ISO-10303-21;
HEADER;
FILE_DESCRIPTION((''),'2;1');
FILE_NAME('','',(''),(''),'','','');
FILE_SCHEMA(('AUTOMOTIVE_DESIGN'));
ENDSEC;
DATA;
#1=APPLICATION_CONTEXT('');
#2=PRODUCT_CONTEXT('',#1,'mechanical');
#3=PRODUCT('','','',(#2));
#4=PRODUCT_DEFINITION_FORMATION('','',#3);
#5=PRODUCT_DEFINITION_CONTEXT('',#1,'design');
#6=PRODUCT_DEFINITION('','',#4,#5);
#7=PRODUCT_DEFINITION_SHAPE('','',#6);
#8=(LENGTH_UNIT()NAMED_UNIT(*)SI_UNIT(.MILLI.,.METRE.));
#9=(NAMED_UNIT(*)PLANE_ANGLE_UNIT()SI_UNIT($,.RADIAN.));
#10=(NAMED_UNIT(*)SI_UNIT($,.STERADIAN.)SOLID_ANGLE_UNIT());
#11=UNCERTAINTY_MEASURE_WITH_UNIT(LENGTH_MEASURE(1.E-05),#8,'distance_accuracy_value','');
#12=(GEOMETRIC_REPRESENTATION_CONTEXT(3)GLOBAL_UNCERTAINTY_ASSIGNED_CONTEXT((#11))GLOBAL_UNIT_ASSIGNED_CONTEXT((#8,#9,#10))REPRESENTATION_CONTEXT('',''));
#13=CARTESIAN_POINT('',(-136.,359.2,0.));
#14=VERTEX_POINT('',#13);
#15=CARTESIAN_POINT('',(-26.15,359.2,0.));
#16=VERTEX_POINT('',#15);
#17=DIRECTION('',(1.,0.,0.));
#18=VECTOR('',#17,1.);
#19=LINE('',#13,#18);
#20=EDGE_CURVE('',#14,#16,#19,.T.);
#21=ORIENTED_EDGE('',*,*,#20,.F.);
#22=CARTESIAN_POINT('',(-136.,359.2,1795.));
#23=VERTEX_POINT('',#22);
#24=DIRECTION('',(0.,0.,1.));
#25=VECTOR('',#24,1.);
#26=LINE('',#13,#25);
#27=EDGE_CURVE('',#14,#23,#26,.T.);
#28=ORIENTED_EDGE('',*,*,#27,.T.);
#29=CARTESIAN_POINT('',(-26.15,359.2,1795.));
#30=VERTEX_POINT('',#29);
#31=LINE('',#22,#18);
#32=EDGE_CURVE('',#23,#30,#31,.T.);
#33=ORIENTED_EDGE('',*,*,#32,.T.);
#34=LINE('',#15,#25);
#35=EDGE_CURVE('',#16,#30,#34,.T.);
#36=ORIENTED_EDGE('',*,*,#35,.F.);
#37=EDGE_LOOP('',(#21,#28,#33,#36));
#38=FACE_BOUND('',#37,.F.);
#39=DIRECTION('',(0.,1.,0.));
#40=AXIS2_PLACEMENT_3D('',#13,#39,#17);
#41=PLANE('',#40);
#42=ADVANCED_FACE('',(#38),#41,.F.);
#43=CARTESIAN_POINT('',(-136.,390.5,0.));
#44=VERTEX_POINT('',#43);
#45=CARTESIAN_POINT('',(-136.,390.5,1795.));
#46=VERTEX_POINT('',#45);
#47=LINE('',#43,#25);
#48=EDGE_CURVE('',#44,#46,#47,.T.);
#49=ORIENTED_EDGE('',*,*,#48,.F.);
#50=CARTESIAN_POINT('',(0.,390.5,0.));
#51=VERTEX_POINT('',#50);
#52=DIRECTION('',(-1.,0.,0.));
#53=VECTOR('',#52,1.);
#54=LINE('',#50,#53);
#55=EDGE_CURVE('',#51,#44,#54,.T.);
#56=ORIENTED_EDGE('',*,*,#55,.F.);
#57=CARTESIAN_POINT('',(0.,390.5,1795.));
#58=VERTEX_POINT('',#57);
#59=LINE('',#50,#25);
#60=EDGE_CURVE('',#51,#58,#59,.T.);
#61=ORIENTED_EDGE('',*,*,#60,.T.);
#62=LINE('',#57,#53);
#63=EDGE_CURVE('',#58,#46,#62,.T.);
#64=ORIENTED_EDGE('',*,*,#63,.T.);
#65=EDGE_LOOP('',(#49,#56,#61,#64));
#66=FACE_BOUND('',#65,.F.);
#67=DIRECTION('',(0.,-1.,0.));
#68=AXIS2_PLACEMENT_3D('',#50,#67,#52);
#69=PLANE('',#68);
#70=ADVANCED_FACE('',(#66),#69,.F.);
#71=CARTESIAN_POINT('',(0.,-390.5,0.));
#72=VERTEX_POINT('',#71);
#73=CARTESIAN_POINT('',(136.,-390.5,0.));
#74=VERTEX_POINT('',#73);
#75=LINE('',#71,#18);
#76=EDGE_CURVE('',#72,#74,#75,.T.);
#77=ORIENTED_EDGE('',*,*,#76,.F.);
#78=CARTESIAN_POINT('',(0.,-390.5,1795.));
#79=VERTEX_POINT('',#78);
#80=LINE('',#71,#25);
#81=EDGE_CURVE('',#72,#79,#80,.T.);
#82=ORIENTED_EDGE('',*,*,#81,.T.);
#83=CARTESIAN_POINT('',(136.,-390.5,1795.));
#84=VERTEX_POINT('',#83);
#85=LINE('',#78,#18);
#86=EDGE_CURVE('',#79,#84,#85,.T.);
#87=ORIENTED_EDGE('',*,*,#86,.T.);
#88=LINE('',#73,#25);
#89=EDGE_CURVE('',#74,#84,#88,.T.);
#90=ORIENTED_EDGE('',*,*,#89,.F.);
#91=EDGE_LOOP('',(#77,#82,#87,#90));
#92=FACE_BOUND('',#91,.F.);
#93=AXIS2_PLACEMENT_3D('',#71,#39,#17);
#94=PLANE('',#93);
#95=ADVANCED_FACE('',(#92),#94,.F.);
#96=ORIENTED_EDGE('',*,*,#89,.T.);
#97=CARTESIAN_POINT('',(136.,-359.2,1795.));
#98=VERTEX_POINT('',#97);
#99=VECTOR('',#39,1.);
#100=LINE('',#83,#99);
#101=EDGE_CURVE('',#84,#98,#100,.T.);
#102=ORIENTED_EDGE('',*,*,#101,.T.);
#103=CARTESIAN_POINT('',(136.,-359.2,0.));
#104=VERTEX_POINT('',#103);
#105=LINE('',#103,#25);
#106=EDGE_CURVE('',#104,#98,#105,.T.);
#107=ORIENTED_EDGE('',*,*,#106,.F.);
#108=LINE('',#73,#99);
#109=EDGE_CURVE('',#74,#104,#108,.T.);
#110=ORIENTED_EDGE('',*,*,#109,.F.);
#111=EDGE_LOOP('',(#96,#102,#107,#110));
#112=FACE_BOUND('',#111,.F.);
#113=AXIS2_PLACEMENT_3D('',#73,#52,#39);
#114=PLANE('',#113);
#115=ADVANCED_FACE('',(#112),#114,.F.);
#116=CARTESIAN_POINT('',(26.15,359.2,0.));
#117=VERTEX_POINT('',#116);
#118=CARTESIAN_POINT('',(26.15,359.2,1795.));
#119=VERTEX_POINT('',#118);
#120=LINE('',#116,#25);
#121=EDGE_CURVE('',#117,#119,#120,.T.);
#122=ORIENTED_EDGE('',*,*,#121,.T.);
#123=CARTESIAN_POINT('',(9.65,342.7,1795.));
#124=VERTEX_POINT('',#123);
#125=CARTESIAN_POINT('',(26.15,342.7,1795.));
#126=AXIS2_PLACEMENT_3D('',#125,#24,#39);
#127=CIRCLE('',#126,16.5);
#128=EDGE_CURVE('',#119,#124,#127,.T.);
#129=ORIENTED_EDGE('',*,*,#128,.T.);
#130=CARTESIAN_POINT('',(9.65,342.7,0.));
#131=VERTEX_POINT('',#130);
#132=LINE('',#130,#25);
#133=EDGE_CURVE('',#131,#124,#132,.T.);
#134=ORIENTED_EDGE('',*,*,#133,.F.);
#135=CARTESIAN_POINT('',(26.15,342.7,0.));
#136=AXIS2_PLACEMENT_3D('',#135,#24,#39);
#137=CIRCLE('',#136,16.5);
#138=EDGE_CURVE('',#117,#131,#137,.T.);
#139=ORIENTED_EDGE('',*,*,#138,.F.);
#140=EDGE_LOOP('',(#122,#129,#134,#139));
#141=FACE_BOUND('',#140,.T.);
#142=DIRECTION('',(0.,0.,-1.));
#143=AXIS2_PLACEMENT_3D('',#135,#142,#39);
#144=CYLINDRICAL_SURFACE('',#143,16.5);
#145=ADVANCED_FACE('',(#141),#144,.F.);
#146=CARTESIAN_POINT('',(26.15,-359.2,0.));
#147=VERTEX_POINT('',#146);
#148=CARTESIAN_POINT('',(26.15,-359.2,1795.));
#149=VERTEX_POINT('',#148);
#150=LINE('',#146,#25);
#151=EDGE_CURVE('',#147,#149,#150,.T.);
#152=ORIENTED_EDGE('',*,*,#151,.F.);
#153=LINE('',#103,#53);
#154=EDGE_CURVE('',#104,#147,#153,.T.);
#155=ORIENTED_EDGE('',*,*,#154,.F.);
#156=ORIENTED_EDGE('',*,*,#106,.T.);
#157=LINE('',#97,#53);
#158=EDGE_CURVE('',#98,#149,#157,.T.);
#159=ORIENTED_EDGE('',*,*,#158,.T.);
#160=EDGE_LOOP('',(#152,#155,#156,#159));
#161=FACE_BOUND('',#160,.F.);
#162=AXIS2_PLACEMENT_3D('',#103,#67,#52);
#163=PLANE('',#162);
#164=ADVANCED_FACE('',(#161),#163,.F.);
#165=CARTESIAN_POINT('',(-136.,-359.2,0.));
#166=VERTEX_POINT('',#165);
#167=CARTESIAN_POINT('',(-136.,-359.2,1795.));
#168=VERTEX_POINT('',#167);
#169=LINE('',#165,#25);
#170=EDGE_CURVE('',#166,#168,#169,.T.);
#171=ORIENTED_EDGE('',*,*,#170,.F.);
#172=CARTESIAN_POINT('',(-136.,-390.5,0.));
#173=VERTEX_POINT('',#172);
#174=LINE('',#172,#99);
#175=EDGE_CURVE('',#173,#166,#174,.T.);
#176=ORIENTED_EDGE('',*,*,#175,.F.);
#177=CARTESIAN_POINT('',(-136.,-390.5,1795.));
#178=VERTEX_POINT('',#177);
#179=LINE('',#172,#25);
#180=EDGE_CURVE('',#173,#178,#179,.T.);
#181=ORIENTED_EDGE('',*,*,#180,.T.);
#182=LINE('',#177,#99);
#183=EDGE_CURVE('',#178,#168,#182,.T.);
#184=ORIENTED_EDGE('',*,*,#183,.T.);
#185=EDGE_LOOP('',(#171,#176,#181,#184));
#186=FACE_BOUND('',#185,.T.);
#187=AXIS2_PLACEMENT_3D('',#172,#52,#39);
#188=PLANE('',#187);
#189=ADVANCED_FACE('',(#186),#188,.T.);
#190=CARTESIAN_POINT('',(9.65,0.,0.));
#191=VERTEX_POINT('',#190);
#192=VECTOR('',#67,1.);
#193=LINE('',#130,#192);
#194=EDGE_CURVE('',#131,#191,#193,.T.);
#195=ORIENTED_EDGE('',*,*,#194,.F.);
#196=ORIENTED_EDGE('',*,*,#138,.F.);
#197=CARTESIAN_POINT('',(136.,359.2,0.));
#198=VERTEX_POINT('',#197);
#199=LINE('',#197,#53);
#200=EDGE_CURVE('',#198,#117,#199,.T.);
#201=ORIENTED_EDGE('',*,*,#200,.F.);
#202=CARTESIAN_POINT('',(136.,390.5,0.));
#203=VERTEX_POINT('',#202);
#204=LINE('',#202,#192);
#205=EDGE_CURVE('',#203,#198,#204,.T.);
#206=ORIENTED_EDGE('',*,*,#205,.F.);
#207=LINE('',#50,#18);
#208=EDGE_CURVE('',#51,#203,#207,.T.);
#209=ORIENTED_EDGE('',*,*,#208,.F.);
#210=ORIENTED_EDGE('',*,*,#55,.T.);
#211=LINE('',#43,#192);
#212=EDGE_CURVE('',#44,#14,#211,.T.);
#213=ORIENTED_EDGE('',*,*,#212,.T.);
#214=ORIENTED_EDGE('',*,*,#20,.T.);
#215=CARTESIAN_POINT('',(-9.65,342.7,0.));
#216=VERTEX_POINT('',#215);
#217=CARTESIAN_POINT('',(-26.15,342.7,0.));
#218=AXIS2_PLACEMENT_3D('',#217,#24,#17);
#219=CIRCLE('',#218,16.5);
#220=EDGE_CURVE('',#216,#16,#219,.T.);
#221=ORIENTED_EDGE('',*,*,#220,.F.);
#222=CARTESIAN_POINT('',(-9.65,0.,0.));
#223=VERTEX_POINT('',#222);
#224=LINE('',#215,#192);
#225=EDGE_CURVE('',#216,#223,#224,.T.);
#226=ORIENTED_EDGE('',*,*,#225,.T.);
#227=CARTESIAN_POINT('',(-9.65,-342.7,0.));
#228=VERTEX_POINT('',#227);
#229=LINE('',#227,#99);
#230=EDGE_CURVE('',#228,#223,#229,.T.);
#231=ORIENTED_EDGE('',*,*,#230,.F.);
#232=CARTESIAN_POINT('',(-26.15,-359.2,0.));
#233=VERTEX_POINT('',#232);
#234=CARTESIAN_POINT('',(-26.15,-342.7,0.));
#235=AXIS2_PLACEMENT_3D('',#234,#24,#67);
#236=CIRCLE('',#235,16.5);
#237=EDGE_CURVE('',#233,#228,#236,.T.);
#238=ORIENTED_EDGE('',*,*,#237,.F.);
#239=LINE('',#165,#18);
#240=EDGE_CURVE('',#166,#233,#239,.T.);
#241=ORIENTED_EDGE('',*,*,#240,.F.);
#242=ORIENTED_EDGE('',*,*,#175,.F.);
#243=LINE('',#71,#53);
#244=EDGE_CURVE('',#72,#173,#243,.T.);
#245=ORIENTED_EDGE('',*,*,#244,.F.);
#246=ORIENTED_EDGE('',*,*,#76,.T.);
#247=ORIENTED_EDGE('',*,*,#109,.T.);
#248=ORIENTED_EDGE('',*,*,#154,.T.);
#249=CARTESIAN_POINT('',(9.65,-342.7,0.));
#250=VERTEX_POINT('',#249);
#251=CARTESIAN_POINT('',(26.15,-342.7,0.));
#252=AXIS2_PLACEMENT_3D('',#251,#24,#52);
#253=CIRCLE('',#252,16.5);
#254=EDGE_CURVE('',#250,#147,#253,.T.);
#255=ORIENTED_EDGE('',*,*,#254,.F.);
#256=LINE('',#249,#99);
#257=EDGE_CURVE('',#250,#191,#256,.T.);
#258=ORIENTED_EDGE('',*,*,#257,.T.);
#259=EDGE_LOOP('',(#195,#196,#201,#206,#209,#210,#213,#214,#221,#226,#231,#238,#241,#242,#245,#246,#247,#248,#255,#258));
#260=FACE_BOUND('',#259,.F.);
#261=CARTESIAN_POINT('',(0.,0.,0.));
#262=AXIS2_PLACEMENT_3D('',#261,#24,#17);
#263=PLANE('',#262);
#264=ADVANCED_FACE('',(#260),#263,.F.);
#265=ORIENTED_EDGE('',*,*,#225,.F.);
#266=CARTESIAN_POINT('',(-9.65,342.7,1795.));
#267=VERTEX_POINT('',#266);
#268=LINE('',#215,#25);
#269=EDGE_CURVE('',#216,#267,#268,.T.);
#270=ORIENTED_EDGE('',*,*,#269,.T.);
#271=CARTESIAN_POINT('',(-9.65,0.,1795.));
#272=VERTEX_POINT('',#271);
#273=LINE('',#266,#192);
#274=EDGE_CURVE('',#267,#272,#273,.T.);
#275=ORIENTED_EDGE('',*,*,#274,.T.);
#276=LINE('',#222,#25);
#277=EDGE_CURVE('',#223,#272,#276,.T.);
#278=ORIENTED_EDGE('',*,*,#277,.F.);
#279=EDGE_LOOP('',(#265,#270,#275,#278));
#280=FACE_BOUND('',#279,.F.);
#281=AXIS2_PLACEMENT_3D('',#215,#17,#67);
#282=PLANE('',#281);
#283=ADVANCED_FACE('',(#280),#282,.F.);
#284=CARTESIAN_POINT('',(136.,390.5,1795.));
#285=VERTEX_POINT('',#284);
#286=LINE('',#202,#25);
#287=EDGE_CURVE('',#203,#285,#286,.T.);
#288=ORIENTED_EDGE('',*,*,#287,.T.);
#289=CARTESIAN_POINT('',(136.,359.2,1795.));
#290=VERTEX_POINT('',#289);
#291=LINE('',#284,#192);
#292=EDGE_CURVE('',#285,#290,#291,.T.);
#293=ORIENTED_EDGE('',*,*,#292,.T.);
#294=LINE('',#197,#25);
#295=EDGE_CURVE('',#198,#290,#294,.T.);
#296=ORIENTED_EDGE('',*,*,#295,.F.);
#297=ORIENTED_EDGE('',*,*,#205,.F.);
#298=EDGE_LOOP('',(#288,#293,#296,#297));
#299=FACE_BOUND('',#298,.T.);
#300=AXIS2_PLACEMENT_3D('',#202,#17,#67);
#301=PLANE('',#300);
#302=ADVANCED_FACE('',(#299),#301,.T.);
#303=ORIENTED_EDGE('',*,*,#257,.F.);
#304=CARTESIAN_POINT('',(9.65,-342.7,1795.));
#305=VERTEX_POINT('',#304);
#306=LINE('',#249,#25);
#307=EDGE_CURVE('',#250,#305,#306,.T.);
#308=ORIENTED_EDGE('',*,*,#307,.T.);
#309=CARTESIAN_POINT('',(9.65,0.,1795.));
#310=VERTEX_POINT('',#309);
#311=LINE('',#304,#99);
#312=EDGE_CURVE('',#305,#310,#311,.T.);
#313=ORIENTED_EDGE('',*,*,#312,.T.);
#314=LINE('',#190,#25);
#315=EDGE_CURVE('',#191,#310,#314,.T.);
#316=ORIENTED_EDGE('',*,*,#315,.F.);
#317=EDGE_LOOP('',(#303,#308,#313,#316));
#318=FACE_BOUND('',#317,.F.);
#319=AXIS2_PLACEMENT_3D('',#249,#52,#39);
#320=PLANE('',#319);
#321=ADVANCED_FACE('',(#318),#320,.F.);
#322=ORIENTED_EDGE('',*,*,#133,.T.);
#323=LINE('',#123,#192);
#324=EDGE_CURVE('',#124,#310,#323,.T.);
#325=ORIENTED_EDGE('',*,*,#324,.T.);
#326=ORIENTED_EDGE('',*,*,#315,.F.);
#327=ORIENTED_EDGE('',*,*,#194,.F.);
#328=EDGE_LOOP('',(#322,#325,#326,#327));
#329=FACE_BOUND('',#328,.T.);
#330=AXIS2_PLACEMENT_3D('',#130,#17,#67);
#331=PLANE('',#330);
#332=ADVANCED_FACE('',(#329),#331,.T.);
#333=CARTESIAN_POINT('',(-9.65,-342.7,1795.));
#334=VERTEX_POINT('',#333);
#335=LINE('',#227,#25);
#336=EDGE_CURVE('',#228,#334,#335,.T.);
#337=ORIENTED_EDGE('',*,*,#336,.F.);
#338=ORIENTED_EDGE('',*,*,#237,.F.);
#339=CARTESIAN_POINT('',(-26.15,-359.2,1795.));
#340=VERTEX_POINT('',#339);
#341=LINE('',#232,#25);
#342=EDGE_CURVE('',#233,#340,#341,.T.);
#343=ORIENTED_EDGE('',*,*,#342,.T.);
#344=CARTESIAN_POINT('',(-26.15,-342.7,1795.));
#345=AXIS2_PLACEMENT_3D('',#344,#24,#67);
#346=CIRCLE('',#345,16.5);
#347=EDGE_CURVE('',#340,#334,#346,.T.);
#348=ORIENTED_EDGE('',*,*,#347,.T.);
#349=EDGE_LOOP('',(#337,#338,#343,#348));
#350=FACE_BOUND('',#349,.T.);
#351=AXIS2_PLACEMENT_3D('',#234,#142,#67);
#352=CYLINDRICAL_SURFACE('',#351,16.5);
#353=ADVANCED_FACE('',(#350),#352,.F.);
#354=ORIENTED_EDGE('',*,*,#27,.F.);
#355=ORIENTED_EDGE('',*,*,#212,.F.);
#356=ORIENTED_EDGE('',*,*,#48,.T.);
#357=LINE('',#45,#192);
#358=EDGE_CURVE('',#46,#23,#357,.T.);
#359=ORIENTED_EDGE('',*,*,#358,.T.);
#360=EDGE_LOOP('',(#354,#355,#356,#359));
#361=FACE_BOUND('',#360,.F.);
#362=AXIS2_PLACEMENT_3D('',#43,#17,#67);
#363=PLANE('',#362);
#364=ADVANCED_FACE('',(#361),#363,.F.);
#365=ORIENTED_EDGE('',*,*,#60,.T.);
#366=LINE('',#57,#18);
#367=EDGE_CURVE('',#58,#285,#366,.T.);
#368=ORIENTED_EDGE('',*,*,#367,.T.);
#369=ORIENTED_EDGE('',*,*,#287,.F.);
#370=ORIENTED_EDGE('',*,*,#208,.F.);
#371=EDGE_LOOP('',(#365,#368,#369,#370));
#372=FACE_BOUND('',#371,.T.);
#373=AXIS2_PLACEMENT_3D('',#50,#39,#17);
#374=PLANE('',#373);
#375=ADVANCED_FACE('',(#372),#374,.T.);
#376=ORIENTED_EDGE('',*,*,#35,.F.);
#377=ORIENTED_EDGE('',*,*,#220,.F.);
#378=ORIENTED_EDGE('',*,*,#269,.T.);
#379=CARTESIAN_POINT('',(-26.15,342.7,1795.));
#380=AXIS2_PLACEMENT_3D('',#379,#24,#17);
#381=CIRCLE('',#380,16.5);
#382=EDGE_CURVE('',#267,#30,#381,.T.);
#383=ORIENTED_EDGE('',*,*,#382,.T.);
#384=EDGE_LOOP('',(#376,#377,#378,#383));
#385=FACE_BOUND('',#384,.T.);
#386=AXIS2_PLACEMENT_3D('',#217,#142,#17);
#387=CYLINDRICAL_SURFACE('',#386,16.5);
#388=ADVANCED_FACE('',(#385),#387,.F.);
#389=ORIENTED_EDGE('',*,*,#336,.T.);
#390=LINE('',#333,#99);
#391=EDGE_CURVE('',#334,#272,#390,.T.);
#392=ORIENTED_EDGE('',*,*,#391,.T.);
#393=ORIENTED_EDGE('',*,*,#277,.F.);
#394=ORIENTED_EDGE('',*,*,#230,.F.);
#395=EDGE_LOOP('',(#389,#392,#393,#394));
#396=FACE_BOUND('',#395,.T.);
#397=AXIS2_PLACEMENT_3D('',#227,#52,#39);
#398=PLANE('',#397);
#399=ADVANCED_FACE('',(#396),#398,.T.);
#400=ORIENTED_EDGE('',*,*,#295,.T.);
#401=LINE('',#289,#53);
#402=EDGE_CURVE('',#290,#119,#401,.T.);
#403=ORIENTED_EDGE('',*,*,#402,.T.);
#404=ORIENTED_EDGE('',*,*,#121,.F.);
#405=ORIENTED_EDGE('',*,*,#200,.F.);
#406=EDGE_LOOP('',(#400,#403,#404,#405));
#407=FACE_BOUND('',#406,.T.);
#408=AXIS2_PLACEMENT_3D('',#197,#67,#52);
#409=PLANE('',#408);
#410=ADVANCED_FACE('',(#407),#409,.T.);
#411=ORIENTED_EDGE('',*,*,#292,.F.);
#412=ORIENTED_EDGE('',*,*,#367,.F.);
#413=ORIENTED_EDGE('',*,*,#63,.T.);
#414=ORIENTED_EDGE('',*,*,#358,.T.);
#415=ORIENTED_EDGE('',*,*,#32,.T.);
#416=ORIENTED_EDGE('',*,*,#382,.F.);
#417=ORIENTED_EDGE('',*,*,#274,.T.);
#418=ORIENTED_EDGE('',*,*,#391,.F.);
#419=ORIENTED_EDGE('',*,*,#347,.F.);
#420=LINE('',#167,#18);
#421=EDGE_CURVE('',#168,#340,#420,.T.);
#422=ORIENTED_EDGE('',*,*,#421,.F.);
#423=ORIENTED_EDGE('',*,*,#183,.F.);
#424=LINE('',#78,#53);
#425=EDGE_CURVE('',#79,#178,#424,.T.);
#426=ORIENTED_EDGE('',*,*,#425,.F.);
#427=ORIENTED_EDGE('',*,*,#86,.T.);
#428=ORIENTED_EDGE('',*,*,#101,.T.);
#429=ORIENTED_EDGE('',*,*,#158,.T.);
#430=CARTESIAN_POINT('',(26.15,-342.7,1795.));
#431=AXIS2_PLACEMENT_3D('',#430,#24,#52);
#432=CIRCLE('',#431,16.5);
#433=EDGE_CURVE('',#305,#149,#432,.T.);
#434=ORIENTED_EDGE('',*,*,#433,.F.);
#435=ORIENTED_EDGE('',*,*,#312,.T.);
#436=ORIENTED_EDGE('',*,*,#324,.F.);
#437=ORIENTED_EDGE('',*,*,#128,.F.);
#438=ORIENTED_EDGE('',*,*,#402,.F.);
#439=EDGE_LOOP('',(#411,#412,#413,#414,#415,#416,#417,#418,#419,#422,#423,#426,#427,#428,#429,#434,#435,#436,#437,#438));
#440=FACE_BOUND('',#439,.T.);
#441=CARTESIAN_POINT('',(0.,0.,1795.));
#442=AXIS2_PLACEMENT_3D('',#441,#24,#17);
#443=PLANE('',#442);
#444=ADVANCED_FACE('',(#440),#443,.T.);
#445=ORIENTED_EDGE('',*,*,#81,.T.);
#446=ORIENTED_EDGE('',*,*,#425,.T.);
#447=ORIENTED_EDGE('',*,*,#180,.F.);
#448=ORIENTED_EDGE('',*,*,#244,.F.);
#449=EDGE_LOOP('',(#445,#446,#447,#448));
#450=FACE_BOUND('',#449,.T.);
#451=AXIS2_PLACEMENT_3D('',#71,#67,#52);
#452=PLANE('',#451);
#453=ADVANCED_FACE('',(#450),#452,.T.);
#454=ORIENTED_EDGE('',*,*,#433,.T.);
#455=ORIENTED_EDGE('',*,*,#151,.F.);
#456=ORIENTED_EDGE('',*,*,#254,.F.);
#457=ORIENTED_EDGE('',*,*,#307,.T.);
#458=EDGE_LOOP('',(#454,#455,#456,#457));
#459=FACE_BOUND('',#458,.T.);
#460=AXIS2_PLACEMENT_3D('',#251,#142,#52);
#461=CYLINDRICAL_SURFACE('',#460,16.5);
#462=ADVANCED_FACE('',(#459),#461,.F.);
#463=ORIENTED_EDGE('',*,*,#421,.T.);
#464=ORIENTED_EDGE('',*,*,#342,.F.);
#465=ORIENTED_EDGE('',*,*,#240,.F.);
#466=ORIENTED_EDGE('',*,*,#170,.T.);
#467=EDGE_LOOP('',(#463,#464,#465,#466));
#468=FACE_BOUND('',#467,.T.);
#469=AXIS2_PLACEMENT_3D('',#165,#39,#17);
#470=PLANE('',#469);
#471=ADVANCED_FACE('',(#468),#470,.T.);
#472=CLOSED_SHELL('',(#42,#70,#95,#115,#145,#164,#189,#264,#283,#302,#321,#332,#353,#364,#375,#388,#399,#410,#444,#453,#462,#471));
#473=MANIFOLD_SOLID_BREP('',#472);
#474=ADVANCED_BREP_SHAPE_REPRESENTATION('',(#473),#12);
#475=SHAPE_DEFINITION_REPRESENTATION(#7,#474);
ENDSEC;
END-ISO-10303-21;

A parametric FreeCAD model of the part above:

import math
import FreeCAD as App
import Part
import Sketcher
from FreeCAD import Vector
Q = App.Units.Quantity

doc = App.newDocument("Part")
body = doc.addObject("PartDesign::Body", "Body")

# Sketch on XY plane
sketch1 = doc.addObject("Sketcher::SketchObject", "Sketch")
body.addObject(sketch1)
sketch1.AttachmentSupport = (doc.XY_Plane, [""])
sketch1.MapMode = "FlatFace"
sketch1.addGeometry(Part.LineSegment(Vector(-136, -359, 0), Vector(-136, -390, 0)), False)
sketch1.addGeometry(Part.LineSegment(Vector(-136, -390, 0), Vector(136, -390, 0)), False)
sketch1.addGeometry(Part.LineSegment(Vector(136, -390, 0), Vector(136, -359, 0)), False)
sketch1.addGeometry(Part.LineSegment(Vector(136, -359, 0), Vector(26, -359, 0)), False)
sketch1.addGeometry(Part.ArcOfCircle(Part.Circle(Vector(26, -343, 0), Vector(0, 0, 1), 16), math.radians(180), math.radians(270)), False)
sketch1.addGeometry(Part.LineSegment(Vector(10, -343, 0), Vector(10, 343, 0)), False)
sketch1.addGeometry(Part.ArcOfCircle(Part.Circle(Vector(26, 343, 0), Vector(0, 0, 1), 16), math.radians(90), math.radians(180)), False)
sketch1.addGeometry(Part.LineSegment(Vector(26, 359, 0), Vector(136, 359, 0)), False)
sketch1.addGeometry(Part.LineSegment(Vector(136, 359, 0), Vector(136, 390, 0)), False)
sketch1.addGeometry(Part.LineSegment(Vector(136, 390, 0), Vector(-136, 390, 0)), False)
sketch1.addGeometry(Part.LineSegment(Vector(-136, 390, 0), Vector(-136, 359, 0)), False)
sketch1.addGeometry(Part.LineSegment(Vector(-136, 359, 0), Vector(-26, 359, 0)), False)
sketch1.addGeometry(Part.ArcOfCircle(Part.Circle(Vector(-26, 343, 0), Vector(0, 0, 1), 16), math.radians(0), math.radians(90)), False)
sketch1.addGeometry(Part.LineSegment(Vector(-10, 343, 0), Vector(-10, -343, 0)), False)
sketch1.addGeometry(Part.ArcOfCircle(Part.Circle(Vector(-26, -343, 0), Vector(0, 0, 1), 16), math.radians(-90), math.radians(0)), False)
sketch1.addGeometry(Part.LineSegment(Vector(-26, -359, 0), Vector(-136, -359, 0)), False)
sketch1.addConstraint(Sketcher.Constraint("Coincident", 0, 2, 1, 1))
sketch1.addConstraint(Sketcher.Constraint("Coincident", 1, 2, 2, 1))
sketch1.addConstraint(Sketcher.Constraint("Coincident", 2, 2, 3, 1))
sketch1.addConstraint(Sketcher.Constraint("Tangent", 3, 2, 4, 2))
sketch1.addConstraint(Sketcher.Constraint("Tangent", 4, 1, 5, 1))
sketch1.addConstraint(Sketcher.Constraint("Tangent", 5, 2, 6, 2))
sketch1.addConstraint(Sketcher.Constraint("Tangent", 6, 1, 7, 1))
sketch1.addConstraint(Sketcher.Constraint("Coincident", 7, 2, 8, 1))
sketch1.addConstraint(Sketcher.Constraint("Coincident", 8, 2, 9, 1))
sketch1.addConstraint(Sketcher.Constraint("Coincident", 9, 2, 10, 1))
sketch1.addConstraint(Sketcher.Constraint("Coincident", 10, 2, 11, 1))
sketch1.addConstraint(Sketcher.Constraint("Tangent", 11, 2, 12, 2))
sketch1.addConstraint(Sketcher.Constraint("Tangent", 12, 1, 13, 1))
sketch1.addConstraint(Sketcher.Constraint("Tangent", 13, 2, 14, 2))
sketch1.addConstraint(Sketcher.Constraint("Tangent", 14, 1, 15, 1))
sketch1.addConstraint(Sketcher.Constraint("Coincident", 15, 2, 0, 1))
sketch1.addConstraint(Sketcher.Constraint("Vertical", 0))
sketch1.addConstraint(Sketcher.Constraint("Horizontal", 1))
sketch1.addConstraint(Sketcher.Constraint("Vertical", 2))
sketch1.addConstraint(Sketcher.Constraint("Horizontal", 3))
sketch1.addConstraint(Sketcher.Constraint("Vertical", 5))
sketch1.addConstraint(Sketcher.Constraint("Horizontal", 7))
sketch1.addConstraint(Sketcher.Constraint("Vertical", 8))
sketch1.addConstraint(Sketcher.Constraint("Horizontal", 9))
sketch1.addConstraint(Sketcher.Constraint("Vertical", 10))
sketch1.addConstraint(Sketcher.Constraint("Horizontal", 11))
sketch1.addConstraint(Sketcher.Constraint("Vertical", 13))
sketch1.addConstraint(Sketcher.Constraint("Horizontal", 15))
sketch1.addConstraint(Sketcher.Constraint("Equal", 4, 6))
sketch1.addConstraint(Sketcher.Constraint("Equal", 6, 12))
sketch1.addConstraint(Sketcher.Constraint("Equal", 12, 14))
sketch1.addConstraint(Sketcher.Constraint("Symmetric", 4, 3, 12, 3, -1, 1))
sketch1.addConstraint(Sketcher.Constraint("Symmetric", 0, 2, 8, 2, -1, 1))
sketch1.addConstraint(Sketcher.Constraint("Symmetric", 7, 2, 10, 2, -2))
sketch1.addConstraint(Sketcher.Constraint("Symmetric", 2, 2, 15, 2, -2))
sketch1.addConstraint(Sketcher.Constraint("Radius", 4, Q("16.5 mm")))
sketch1.addConstraint(Sketcher.Constraint("DistanceY", 0, 2, 0, 1, Q("31.3 mm")))
sketch1.addConstraint(Sketcher.Constraint("DistanceX", 0, 2, -1, 1, Q("136 mm")))
sketch1.addConstraint(Sketcher.Constraint("DistanceY", 0, 2, -1, 1, Q("390.5 mm")))
sketch1.addConstraint(Sketcher.Constraint("DistanceX", -1, 1, 4, 1, Q("9.65 mm")))
pad1 = doc.addObject("PartDesign::Pad", "Pad")
body.addObject(pad1)
pad1.Profile = sketch1
pad1.Length = 1795

doc.recompute()
